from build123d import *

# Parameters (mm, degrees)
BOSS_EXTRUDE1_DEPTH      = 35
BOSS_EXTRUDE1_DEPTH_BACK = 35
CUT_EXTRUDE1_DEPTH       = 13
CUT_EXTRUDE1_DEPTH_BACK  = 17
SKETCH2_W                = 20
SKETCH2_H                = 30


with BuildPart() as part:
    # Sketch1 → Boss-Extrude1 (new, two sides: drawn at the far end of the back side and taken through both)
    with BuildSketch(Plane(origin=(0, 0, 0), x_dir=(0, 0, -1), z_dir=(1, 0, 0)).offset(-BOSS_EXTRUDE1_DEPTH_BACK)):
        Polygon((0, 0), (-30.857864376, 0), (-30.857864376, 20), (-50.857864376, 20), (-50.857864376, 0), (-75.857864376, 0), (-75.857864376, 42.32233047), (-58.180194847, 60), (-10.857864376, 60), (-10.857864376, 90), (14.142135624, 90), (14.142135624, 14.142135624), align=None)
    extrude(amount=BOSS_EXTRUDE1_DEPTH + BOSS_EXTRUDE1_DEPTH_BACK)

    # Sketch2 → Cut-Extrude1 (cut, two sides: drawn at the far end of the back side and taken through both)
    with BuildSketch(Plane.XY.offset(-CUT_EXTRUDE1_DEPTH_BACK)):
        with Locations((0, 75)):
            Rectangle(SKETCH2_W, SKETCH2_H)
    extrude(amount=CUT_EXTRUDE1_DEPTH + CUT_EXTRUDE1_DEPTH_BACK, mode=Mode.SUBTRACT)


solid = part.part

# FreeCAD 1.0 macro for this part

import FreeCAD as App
import Part
import Sketcher
from FreeCAD import Vector
Q = App.Units.Quantity

doc = App.newDocument("Part")
body = doc.addObject("PartDesign::Body", "Body")

sketch1 = body.newObject("Sketcher::SketchObject", "Sketch")
sketch1.AttachmentSupport = (doc.getObject("YZ_Plane"), [""])
sketch1.MapMode = "FlatFace"
sketch1.addGeometry([
    Part.LineSegment(Vector(0, 30.857864, 0), Vector(0, 0, 0)),
    Part.LineSegment(Vector(0, 0, 0), Vector(14.142136, -14.142136, 0)),
    Part.LineSegment(Vector(14.142136, -14.142136, 0), Vector(90, -14.142136, 0)),
    Part.LineSegment(Vector(90, -14.142136, 0), Vector(90, 10.857864, 0)),
    Part.LineSegment(Vector(90, 10.857864, 0), Vector(60, 10.857864, 0)),
    Part.LineSegment(Vector(60, 10.857864, 0), Vector(60, 58.180195, 0)),
    Part.LineSegment(Vector(60, 58.180195, 0), Vector(42.32233, 75.857864, 0)),
    Part.LineSegment(Vector(42.32233, 75.857864, 0), Vector(0, 75.857864, 0)),
    Part.LineSegment(Vector(0, 75.857864, 0), Vector(0, 50.857864, 0)),
    Part.LineSegment(Vector(0, 50.857864, 0), Vector(20, 50.857864, 0)),
    Part.LineSegment(Vector(20, 50.857864, 0), Vector(20, 30.857864, 0)),
    Part.LineSegment(Vector(20, 30.857864, 0), Vector(0, 30.857864, 0)),
], False)
sketch1.addConstraint([
    Sketcher.Constraint("Coincident", 0, 2, 1, 1),
    Sketcher.Constraint("Coincident", 1, 2, 2, 1),
    Sketcher.Constraint("Coincident", 2, 2, 3, 1),
    Sketcher.Constraint("Coincident", 3, 2, 4, 1),
    Sketcher.Constraint("Coincident", 4, 2, 5, 1),
    Sketcher.Constraint("Coincident", 5, 2, 6, 1),
    Sketcher.Constraint("Coincident", 6, 2, 7, 1),
    Sketcher.Constraint("Coincident", 7, 2, 8, 1),
    Sketcher.Constraint("Coincident", 8, 2, 9, 1),
    Sketcher.Constraint("Coincident", 9, 2, 10, 1),
    Sketcher.Constraint("Coincident", 10, 2, 11, 1),
    Sketcher.Constraint("Coincident", 11, 2, 0, 1),
    Sketcher.Constraint("Vertical", 0),
    Sketcher.Constraint("Horizontal", 2),
    Sketcher.Constraint("Vertical", 3),
    Sketcher.Constraint("Horizontal", 4),
    Sketcher.Constraint("Vertical", 5),
    Sketcher.Constraint("Horizontal", 7),
    Sketcher.Constraint("Vertical", 8),
    Sketcher.Constraint("Horizontal", 9),
    Sketcher.Constraint("Vertical", 10),
    Sketcher.Constraint("Horizontal", 11),
    Sketcher.Constraint("Coincident", 0, 2, -1, 1),
    Sketcher.Constraint("PointOnObject", 7, 2, -2),
    Sketcher.Constraint("Parallel", 1, 6),
    Sketcher.Constraint("Equal", 3, 8),
    Sketcher.Constraint("Equal", 11, 10),
    Sketcher.Constraint("DistanceX", 4, 2, 4, 1, Q("30 mm")),
    Sketcher.Constraint("DistanceX", 9, 1, 9, 2, Q("20 mm")),
    Sketcher.Constraint("DistanceY", 3, 1, 3, 2, Q("25 mm")),
    Sketcher.Constraint("Angle", 1, Q("-45 deg")),
    Sketcher.Constraint("Distance", 1, Q("20 mm")),
    Sketcher.Constraint("Distance", 6, Q("25 mm")),
    Sketcher.Constraint("DistanceX", -1, 1, 2, 2, Q("90 mm")),
    Sketcher.Constraint("DistanceY", 4, 2, 6, 2, Q("65 mm")),
])
pad1 = body.newObject("PartDesign::Pad", "Pad")
pad1.Profile = sketch1
pad1.Type = "TwoLengths"
pad1.Length = 35
pad1.Length2 = 35

sketch2 = body.newObject("Sketcher::SketchObject", "Sketch001")
sketch2.AttachmentSupport = (doc.getObject("XY_Plane"), [""])
sketch2.MapMode = "FlatFace"
sketch2.addGeometry([
    Part.LineSegment(Vector(-10, 90, 0), Vector(-10, 60, 0)),
    Part.LineSegment(Vector(-10, 60, 0), Vector(10, 60, 0)),
    Part.LineSegment(Vector(10, 60, 0), Vector(10, 90, 0)),
    Part.LineSegment(Vector(10, 90, 0), Vector(-10, 90, 0)),
], False)
sketch2.addConstraint([
    Sketcher.Constraint("Coincident", 0, 2, 1, 1),
    Sketcher.Constraint("Coincident", 1, 2, 2, 1),
    Sketcher.Constraint("Coincident", 2, 2, 3, 1),
    Sketcher.Constraint("Coincident", 3, 2, 0, 1),
    Sketcher.Constraint("Vertical", 0),
    Sketcher.Constraint("Horizontal", 1),
    Sketcher.Constraint("Vertical", 2),
    Sketcher.Constraint("Horizontal", 3),
    Sketcher.Constraint("DistanceX", 1, 1, 1, 2, Q("20 mm")),
    Sketcher.Constraint("DistanceY", 0, 2, 0, 1, Q("30 mm")),
    Sketcher.Constraint("DistanceX", 0, 2, -1, 1, Q("10 mm")),
    Sketcher.Constraint("DistanceY", -1, 1, 0, 2, Q("60 mm")),
])
pocket1 = body.newObject("PartDesign::Pocket", "Pocket")
pocket1.Profile = sketch2
pocket1.Type = "ThroughAll"
pocket1.Midplane = True

doc.recompute()
